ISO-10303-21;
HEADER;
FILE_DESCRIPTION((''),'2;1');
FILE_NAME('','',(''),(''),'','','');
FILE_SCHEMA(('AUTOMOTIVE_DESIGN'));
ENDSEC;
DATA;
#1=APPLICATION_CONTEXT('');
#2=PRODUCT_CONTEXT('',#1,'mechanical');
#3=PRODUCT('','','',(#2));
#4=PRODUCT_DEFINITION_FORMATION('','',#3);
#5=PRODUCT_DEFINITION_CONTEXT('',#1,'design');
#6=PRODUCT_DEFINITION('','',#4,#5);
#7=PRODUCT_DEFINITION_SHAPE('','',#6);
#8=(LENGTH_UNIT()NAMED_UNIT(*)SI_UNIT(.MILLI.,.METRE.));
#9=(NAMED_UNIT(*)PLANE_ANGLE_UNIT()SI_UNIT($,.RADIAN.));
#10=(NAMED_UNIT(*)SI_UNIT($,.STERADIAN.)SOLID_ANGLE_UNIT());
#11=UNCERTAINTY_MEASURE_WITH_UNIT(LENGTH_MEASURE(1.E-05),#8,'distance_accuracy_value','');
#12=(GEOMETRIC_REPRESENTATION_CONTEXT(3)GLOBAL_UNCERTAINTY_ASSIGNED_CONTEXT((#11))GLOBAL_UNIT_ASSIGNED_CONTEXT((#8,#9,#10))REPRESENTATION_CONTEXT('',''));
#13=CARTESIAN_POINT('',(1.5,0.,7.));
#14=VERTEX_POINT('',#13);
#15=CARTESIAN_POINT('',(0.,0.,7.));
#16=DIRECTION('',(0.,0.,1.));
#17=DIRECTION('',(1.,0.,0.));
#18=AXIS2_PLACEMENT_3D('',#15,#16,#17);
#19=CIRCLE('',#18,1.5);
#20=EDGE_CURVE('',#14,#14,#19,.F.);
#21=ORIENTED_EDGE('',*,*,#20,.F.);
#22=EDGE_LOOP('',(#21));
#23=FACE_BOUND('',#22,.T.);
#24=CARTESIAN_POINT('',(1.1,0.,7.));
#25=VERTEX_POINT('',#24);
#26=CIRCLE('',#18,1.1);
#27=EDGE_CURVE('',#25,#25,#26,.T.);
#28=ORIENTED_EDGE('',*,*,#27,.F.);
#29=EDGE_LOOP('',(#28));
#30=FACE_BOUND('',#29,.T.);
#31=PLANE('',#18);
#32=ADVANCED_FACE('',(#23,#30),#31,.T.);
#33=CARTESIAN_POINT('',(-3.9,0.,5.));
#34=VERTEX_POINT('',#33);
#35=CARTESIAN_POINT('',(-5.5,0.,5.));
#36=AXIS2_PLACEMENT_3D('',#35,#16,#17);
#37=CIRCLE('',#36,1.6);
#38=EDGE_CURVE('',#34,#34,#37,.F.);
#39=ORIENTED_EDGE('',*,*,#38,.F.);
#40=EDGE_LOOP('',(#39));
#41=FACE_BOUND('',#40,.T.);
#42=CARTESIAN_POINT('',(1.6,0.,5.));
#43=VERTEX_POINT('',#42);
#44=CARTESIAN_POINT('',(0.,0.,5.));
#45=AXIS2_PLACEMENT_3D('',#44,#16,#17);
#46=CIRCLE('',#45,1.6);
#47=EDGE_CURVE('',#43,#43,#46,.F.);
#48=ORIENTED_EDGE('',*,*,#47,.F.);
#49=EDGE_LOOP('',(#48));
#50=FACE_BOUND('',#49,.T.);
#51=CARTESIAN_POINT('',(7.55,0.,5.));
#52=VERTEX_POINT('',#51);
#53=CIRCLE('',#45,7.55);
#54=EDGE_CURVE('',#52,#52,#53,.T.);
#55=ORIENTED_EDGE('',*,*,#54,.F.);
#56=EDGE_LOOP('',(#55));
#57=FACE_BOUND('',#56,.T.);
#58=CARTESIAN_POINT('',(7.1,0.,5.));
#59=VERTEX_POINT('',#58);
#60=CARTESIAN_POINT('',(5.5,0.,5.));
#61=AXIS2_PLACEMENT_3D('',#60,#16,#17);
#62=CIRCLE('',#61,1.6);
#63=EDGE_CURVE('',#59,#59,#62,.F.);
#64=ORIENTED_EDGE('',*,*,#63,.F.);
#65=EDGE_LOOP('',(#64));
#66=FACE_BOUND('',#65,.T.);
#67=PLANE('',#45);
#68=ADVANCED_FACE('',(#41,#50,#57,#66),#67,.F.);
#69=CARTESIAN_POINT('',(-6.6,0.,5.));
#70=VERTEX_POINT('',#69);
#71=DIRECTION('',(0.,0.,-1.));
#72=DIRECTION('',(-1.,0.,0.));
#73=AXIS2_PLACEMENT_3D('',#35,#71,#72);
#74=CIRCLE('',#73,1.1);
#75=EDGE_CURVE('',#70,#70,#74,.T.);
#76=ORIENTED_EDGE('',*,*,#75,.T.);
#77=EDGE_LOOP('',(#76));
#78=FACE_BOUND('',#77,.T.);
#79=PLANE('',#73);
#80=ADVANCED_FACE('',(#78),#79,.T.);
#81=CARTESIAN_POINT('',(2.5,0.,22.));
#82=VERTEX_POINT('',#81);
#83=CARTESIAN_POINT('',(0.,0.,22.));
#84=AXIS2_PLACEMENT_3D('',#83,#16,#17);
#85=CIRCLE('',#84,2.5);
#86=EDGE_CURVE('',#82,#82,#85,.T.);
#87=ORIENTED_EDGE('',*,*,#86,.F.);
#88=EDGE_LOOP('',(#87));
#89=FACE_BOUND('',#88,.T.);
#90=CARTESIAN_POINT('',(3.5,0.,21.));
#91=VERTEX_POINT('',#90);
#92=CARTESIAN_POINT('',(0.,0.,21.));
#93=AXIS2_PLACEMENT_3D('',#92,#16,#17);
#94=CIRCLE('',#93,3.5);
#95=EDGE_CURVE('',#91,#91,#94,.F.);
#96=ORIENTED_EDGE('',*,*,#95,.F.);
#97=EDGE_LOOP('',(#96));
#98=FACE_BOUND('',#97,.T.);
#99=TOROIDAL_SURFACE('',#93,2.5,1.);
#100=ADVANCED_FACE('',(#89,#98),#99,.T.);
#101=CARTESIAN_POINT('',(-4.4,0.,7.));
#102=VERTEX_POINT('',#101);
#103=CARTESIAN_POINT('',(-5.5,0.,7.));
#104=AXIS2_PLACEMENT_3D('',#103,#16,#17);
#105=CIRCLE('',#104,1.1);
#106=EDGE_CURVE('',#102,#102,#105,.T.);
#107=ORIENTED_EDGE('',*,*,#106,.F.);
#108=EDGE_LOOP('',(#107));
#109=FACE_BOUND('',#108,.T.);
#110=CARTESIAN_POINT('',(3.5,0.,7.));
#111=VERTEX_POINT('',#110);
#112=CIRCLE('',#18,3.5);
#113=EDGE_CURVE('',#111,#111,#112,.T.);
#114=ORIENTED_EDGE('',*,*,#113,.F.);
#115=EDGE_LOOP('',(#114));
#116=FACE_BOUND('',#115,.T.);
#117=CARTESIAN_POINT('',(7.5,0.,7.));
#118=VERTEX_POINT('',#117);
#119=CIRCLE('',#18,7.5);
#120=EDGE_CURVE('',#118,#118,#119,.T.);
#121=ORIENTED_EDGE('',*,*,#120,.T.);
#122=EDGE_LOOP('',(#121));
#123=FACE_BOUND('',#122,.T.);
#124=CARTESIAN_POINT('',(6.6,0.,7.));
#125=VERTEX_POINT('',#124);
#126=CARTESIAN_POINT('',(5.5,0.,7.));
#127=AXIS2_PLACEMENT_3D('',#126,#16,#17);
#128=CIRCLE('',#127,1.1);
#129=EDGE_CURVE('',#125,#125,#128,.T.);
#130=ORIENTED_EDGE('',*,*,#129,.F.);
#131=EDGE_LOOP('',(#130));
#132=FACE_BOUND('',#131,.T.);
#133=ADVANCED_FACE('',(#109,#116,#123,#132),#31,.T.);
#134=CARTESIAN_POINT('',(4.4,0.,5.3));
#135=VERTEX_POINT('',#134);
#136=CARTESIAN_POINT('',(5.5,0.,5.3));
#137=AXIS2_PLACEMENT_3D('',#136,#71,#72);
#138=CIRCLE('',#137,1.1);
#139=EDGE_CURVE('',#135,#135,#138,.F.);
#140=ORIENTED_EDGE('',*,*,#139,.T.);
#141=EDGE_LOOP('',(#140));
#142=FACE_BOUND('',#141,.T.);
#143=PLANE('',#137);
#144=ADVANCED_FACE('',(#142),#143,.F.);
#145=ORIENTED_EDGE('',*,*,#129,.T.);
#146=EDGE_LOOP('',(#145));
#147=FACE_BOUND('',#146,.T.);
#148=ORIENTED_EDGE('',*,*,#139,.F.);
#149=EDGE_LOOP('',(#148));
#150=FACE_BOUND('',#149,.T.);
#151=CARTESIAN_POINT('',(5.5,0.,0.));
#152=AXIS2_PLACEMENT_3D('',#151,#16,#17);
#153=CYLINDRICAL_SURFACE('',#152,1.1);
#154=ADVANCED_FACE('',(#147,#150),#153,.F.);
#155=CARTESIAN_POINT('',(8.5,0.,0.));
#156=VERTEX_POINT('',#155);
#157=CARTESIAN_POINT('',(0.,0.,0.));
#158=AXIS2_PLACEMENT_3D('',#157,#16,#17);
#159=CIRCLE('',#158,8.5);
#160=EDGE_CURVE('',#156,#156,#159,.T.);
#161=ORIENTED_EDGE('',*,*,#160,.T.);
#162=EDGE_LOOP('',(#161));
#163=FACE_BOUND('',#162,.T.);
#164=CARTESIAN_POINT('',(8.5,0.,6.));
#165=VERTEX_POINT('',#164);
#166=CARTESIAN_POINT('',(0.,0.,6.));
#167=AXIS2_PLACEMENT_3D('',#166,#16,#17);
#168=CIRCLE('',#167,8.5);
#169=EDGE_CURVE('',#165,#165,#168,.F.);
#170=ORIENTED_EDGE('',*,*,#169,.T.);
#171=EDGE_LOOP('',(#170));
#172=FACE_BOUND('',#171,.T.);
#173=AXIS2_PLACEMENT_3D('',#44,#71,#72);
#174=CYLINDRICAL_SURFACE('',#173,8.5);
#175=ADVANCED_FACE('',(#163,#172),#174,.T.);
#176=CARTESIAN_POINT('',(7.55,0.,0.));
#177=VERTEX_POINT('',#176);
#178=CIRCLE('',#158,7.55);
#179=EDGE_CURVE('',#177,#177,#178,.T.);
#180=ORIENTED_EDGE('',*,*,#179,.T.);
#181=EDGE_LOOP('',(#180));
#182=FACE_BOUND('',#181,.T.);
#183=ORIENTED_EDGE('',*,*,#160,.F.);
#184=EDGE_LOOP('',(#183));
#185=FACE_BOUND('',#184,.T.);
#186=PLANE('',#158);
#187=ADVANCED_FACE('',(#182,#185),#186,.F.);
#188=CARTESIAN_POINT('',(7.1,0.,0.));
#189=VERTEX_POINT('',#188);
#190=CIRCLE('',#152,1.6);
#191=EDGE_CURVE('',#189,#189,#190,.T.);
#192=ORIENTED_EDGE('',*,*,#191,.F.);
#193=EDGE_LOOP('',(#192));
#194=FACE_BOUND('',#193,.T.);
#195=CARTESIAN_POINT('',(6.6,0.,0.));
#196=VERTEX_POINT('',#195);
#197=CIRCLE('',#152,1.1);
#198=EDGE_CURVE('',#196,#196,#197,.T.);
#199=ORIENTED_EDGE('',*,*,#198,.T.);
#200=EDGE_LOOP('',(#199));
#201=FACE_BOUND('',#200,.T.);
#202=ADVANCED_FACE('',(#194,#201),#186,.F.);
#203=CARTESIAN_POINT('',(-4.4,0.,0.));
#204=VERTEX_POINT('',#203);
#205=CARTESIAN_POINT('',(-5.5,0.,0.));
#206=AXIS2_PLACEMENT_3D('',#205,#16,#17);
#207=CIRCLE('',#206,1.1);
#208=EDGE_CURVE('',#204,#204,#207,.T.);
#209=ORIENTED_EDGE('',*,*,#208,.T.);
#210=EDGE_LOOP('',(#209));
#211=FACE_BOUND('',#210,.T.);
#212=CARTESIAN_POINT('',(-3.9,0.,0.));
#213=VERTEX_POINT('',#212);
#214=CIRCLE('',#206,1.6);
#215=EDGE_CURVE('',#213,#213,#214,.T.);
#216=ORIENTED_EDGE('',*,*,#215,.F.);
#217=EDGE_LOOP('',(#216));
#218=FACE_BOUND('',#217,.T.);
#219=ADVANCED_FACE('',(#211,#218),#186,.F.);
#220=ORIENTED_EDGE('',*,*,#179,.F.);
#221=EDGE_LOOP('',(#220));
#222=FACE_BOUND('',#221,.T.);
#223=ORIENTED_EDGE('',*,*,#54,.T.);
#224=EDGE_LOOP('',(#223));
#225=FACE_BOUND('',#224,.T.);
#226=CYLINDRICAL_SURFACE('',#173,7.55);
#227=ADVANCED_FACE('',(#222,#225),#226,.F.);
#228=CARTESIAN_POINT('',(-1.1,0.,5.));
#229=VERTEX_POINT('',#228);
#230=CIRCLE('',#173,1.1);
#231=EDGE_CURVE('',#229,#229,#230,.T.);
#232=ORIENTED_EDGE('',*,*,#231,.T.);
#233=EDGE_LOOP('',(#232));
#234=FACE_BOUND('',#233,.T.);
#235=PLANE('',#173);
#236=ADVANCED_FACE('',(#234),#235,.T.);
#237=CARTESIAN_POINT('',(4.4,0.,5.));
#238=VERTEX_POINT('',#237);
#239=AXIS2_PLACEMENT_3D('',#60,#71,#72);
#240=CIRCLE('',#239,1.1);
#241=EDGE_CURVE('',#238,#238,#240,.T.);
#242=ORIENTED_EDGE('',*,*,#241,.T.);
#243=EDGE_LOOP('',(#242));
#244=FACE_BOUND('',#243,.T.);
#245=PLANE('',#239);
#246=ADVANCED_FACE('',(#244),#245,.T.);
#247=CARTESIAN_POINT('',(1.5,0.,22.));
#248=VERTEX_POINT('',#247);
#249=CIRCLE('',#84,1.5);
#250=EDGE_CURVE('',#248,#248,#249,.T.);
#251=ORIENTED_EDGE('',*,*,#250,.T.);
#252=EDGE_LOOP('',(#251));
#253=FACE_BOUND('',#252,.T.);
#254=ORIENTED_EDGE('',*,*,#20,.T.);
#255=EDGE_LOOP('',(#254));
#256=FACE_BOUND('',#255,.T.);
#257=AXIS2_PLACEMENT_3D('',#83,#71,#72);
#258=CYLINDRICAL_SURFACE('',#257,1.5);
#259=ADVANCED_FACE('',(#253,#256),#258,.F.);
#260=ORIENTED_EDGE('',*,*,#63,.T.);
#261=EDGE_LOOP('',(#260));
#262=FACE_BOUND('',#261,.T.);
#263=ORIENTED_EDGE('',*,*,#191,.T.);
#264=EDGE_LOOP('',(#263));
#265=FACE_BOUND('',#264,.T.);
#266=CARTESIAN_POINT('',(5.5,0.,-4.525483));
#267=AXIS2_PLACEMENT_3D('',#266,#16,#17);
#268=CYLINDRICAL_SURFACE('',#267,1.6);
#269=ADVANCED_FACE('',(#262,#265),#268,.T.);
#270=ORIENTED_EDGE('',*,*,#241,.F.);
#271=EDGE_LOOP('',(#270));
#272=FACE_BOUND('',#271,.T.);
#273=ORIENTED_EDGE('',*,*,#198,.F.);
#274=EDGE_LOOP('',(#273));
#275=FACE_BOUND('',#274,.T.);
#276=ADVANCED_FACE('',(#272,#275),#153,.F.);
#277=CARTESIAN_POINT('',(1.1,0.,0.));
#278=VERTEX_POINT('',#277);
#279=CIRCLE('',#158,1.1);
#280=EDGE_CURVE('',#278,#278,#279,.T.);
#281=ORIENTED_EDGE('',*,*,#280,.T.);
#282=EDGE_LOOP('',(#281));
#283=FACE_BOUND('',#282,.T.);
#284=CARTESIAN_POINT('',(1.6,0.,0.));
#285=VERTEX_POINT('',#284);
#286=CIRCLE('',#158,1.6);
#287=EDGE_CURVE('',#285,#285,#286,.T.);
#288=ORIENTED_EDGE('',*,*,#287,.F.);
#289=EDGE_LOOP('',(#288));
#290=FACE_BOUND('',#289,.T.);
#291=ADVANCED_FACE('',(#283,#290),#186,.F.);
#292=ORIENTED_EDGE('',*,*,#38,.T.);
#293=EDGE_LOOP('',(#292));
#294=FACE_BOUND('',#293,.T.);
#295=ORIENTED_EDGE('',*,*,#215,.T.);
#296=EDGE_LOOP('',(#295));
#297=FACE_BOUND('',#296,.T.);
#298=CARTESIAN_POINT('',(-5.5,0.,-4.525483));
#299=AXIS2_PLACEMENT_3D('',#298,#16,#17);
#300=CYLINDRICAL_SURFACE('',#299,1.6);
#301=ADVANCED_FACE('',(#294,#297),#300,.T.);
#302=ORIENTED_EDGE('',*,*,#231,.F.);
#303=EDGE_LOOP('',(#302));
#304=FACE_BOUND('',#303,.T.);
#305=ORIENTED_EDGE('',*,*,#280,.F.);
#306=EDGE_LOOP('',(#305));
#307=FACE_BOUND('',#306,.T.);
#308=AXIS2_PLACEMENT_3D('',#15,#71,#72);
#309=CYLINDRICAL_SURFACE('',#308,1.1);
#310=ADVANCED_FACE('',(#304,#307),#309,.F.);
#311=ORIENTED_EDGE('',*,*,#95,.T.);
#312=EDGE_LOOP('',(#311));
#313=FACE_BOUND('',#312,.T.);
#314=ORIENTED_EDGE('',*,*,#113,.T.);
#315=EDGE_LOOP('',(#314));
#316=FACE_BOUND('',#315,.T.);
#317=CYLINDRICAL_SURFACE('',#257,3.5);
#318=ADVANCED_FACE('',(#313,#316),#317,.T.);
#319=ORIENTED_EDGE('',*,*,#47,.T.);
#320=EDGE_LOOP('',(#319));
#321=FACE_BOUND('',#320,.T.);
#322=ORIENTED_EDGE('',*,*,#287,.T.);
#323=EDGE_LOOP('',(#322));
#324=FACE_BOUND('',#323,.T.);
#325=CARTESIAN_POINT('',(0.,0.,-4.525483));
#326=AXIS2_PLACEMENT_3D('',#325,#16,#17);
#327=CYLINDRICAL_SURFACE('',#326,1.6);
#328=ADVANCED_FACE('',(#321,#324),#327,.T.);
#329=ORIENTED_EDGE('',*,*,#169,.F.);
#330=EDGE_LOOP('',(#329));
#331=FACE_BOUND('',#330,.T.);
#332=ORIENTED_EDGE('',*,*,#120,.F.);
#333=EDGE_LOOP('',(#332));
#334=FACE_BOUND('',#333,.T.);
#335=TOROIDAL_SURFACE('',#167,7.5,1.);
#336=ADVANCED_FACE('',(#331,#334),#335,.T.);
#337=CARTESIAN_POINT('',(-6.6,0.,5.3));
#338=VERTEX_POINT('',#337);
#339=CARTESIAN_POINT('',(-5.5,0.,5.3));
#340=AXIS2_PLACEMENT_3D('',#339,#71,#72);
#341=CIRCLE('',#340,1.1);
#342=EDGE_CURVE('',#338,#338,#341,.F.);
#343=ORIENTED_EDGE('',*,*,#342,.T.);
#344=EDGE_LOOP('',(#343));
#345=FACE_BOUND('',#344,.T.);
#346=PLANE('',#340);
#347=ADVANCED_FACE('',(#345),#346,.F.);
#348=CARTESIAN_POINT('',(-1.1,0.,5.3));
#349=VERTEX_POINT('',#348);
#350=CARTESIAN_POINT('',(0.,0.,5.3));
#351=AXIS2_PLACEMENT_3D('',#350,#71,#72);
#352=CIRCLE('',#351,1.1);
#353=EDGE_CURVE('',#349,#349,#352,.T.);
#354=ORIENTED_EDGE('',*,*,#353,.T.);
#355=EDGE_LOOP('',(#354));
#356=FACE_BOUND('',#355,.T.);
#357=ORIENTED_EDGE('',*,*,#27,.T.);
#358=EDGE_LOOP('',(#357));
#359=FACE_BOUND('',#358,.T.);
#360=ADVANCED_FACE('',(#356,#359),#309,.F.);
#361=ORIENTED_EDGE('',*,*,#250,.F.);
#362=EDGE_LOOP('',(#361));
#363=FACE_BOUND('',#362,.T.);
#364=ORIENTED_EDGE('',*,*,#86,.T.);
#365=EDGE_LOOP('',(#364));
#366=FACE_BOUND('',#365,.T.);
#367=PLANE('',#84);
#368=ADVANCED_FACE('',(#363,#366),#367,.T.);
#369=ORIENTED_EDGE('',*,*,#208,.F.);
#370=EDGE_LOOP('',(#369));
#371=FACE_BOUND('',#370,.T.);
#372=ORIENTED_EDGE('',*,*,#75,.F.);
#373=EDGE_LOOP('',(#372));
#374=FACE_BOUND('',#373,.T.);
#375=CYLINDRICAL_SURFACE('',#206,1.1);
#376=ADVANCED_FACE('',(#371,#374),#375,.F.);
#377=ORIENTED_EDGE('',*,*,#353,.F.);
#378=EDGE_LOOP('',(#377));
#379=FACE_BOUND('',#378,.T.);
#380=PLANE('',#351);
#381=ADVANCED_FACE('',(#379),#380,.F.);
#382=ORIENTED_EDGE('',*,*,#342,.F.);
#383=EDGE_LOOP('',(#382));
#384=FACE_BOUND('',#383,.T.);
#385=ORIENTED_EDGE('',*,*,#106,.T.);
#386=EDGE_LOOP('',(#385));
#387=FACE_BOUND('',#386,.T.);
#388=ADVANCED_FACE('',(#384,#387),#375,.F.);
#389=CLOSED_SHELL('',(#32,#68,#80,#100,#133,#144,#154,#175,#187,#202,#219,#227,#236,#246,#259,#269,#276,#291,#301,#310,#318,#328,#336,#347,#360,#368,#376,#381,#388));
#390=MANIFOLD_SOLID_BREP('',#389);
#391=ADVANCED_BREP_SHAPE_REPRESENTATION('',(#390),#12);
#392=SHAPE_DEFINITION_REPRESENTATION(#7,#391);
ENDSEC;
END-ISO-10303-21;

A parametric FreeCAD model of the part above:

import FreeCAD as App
import Part
import Sketcher


def edges_at(feature, points):
    """Names of the edges that pass closest to the given points."""
    edges = feature.Shape.Edges
    near = lambda p: min(range(len(edges)), key=lambda i: edges[i].distToShape(Part.Vertex(*p))[0])
    return sorted({f"Edge{near(p) + 1}" for p in points})

doc = App.newDocument("Part")
body = doc.addObject("PartDesign::Body", "Body")

# Sketch on XY plane
sketch1 = doc.addObject("Sketcher::SketchObject", "Sketch")
body.addObject(sketch1)
sketch1.AttachmentSupport = (doc.XY_Plane, [""])
sketch1.MapMode = "FlatFace"
sketch1.addGeometry([
    Part.Circle(App.Vector(0, 0, 0), App.Vector(0, 0, 1), 8.5),
    Part.Circle(App.Vector(0, 0, 0), App.Vector(0, 0, 1), 7.55),
], False)
sketch1.addConstraint([
    Sketcher.Constraint("Coincident", 0, 3, -1, 1),
    Sketcher.Constraint("Coincident", 1, 3, -1, 1),
    Sketcher.Constraint("Diameter", 0, 17.0),
    Sketcher.Constraint("Diameter", 1, 15.1),
])
pad1 = doc.addObject("PartDesign::Pad", "Pad")
body.addObject(pad1)
pad1.Profile = sketch1
pad1.Length = 5

# Sketch on XY plane
sketch2 = doc.addObject("Sketcher::SketchObject", "Sketch001")
body.addObject(sketch2)
sketch2.AttachmentSupport = (doc.XY_Plane, [""])
sketch2.MapMode = "FlatFace"
sketch2.AttachmentOffset = App.Placement(App.Vector(0, 0, 5), App.Rotation())
sketch2.addGeometry([
    Part.Circle(App.Vector(0, 0, 0), App.Vector(0, 0, 1), 8.5),
    Part.Circle(App.Vector(0, 0, 0), App.Vector(0, 0, 1), 1.1),
], False)
sketch2.addConstraint([
    Sketcher.Constraint("Coincident", 0, 3, -1, 1),
    Sketcher.Constraint("Coincident", 1, 3, -1, 1),
    Sketcher.Constraint("Diameter", 0, 17.0),
    Sketcher.Constraint("Diameter", 1, 2.2),
])
pad2 = doc.addObject("PartDesign::Pad", "Pad001")
body.addObject(pad2)
pad2.Profile = sketch2
pad2.Length = 2

# Sketch on XY plane
sketch3 = doc.addObject("Sketcher::SketchObject", "Sketch002")
body.addObject(sketch3)
sketch3.AttachmentSupport = (doc.XY_Plane, [""])
sketch3.MapMode = "FlatFace"
sketch3.AttachmentOffset = App.Placement(App.Vector(0, 0, 7), App.Rotation())
sketch3.addGeometry([
    Part.Circle(App.Vector(0, 0, 0), App.Vector(0, 0, 1), 3.5),
    Part.Circle(App.Vector(0, 0, 0), App.Vector(0, 0, 1), 1.5),
], False)
sketch3.addConstraint([
    Sketcher.Constraint("Coincident", 0, 3, -1, 1),
    Sketcher.Constraint("Coincident", 1, 3, -1, 1),
    Sketcher.Constraint("Diameter", 0, 7.0),
    Sketcher.Constraint("Diameter", 1, 3.0),
])
pad3 = doc.addObject("PartDesign::Pad", "Pad002")
body.addObject(pad3)
pad3.Profile = sketch3
pad3.Length = 15

# Sketch on XY plane
sketch4 = doc.addObject("Sketcher::SketchObject", "Sketch003")
body.addObject(sketch4)
sketch4.AttachmentSupport = (doc.XY_Plane, [""])
sketch4.MapMode = "FlatFace"
sketch4.AttachmentOffset = App.Placement(App.Vector(0, 0, 7), App.Rotation())
sketch4.addGeometry([
    Part.Circle(App.Vector(-5.5, 0, 0), App.Vector(0, 0, 1), 1.1),
    Part.Circle(App.Vector(5.5, 0, 0), App.Vector(0, 0, 1), 1.1),
], False)
sketch4.addConstraint([
    Sketcher.Constraint("Equal", 0, 1),
    Sketcher.Constraint("Symmetric", 0, 3, 1, 3, -1, 1),
    Sketcher.Constraint("PointOnObject", 0, 3, -1),
    Sketcher.Constraint("Diameter", 0, 2.2),
    Sketcher.Constraint("DistanceX", 0, 3, 1, 3, 11.0),
])
pocket1 = doc.addObject("PartDesign::Pocket", "Pocket")
body.addObject(pocket1)
pocket1.Profile = sketch4
pocket1.Type = "ThroughAll"
pocket1.Midplane = True

# Sketch on XY plane
sketch5 = doc.addObject("Sketcher::SketchObject", "Sketch004")
body.addObject(sketch5)
sketch5.AttachmentSupport = (doc.XY_Plane, [""])
sketch5.MapMode = "FlatFace"
sketch5.AttachmentOffset = App.Placement(App.Vector(0, 0, 5), App.Rotation())
sketch5.addGeometry([
    Part.Circle(App.Vector(-5.5, 0, 0), App.Vector(0, 0, 1), 1.6),  # 0
    Part.Circle(App.Vector(-5.5, 0, 0), App.Vector(0, 0, 1), 1.1),  # 1
    Part.Circle(App.Vector(0, 0, 0), App.Vector(0, 0, 1), 1.6),  # 2
    Part.Circle(App.Vector(0, 0, 0), App.Vector(0, 0, 1), 1.1),  # 3
    Part.Circle(App.Vector(5.5, 0, 0), App.Vector(0, 0, 1), 1.6),  # 4
    Part.Circle(App.Vector(5.5, 0, 0), App.Vector(0, 0, 1), 1.1),  # 5
], False)
sketch5.addConstraint([
    Sketcher.Constraint("Coincident", 2, 3, -1, 1),
    Sketcher.Constraint("Coincident", 3, 3, -1, 1),
    Sketcher.Constraint("Coincident", 1, 3, 0, 3),
    Sketcher.Constraint("Coincident", 5, 3, 4, 3),
    Sketcher.Constraint("Equal", 0, 2),
    Sketcher.Constraint("Equal", 1, 3),
    Sketcher.Constraint("Equal", 2, 4),
    Sketcher.Constraint("Equal", 3, 5),
    Sketcher.Constraint("Symmetric", 0, 3, 4, 3, -1, 1),
    Sketcher.Constraint("PointOnObject", 0, 3, -1),
    Sketcher.Constraint("Diameter", 0, 3.2),
    Sketcher.Constraint("Diameter", 1, 2.2),
    Sketcher.Constraint("DistanceX", 0, 3, 4, 3, 11.0),
])
pad4 = doc.addObject("PartDesign::Pad", "Pad003")
body.addObject(pad4)
pad4.Profile = sketch5
pad4.Length = 5
pad4.Reversed = True

# Sketch on XY plane
sketch6 = doc.addObject("Sketcher::SketchObject", "Sketch005")
body.addObject(sketch6)
sketch6.AttachmentSupport = (doc.XY_Plane, [""])
sketch6.MapMode = "FlatFace"
sketch6.AttachmentOffset = App.Placement(App.Vector(0, 0, 5.3), App.Rotation())
sketch6.addGeometry([
    Part.Circle(App.Vector(-5.5, 0, 0), App.Vector(0, 0, 1), 1.1),
    Part.Circle(App.Vector(5.5, 0, 0), App.Vector(0, 0, 1), 1.1),
    Part.Circle(App.Vector(0, 0, 0), App.Vector(0, 0, 1), 1.1),
], False)
sketch6.addConstraint([
    Sketcher.Constraint("Coincident", 2, 3, -1, 1),
    Sketcher.Constraint("Equal", 0, 1),
    Sketcher.Constraint("Equal", 1, 2),
    Sketcher.Constraint("Symmetric", 0, 3, 1, 3, -1, 1),
    Sketcher.Constraint("PointOnObject", 0, 3, -1),
    Sketcher.Constraint("Diameter", 0, 2.2),
    Sketcher.Constraint("DistanceX", 0, 3, 1, 3, 11.0),
])
pad5 = doc.addObject("PartDesign::Pad", "Pad004")
body.addObject(pad5)
pad5.Profile = sketch6
pad5.Length = 0.3
pad5.Reversed = True
doc.recompute()

fillet = doc.addObject("PartDesign::Fillet", "Fillet")
body.addObject(fillet)
fillet.Base = (pad5, edges_at(pad5, [(-8.5, 0, 7), (-3.5, 0, 22)]))
fillet.Radius = 1

doc.recompute()
